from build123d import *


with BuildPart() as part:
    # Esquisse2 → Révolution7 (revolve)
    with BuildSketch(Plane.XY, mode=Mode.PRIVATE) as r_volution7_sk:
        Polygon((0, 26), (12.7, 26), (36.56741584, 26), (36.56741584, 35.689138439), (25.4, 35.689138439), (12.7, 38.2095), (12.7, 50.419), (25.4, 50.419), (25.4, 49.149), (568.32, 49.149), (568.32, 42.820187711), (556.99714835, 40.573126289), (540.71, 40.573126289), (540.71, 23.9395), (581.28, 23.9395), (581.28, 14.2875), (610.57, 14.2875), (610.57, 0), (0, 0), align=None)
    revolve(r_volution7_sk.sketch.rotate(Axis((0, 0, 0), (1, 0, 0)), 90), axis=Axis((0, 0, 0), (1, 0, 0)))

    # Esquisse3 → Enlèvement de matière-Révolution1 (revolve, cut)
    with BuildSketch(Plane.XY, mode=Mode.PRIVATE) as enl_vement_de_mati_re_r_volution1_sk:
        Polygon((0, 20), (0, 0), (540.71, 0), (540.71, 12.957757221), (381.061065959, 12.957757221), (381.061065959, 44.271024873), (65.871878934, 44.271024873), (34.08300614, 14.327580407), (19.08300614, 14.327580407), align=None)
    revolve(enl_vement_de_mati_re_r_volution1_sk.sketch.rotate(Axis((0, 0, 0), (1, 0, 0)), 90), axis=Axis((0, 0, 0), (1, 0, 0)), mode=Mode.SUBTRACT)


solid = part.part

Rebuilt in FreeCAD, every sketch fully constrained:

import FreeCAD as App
import Part
import Sketcher
Q = App.Units.Quantity

doc = App.newDocument("Part")
body = doc.addObject("PartDesign::Body", "Body")

# Sketch on XY plane
sketch1 = body.newObject("Sketcher::SketchObject", "Sketch")
sketch1.AttachmentSupport = (doc.getObject("XY_Plane"), [""])
sketch1.MapMode = "FlatFace"
sketch1.addGeometry(Part.LineSegment(App.Vector(36.567416, 26, 0), App.Vector(0, 26, 0)), False)
sketch1.addGeometry(Part.LineSegment(App.Vector(0, 26, 0), App.Vector(0, 0, 0)), False)
sketch1.addGeometry(Part.LineSegment(App.Vector(0, 0, 0), App.Vector(610.57, 0, 0)), False)
sketch1.addGeometry(Part.LineSegment(App.Vector(610.57, 0, 0), App.Vector(610.57, 14.2875, 0)), False)
sketch1.addGeometry(Part.LineSegment(App.Vector(610.57, 14.2875, 0), App.Vector(581.28, 14.2875, 0)), False)
sketch1.addGeometry(Part.LineSegment(App.Vector(581.28, 14.2875, 0), App.Vector(581.28, 23.9395, 0)), False)
sketch1.addGeometry(Part.LineSegment(App.Vector(581.28, 23.9395, 0), App.Vector(540.71, 23.9395, 0)), False)
sketch1.addGeometry(Part.LineSegment(App.Vector(540.71, 23.9395, 0), App.Vector(540.71, 40.573126, 0)), False)
sketch1.addGeometry(Part.LineSegment(App.Vector(540.71, 40.573126, 0), App.Vector(556.997148, 40.573126, 0)), False)
sketch1.addGeometry(Part.LineSegment(App.Vector(556.997148, 40.573126, 0), App.Vector(568.32, 42.820188, 0)), False)
sketch1.addGeometry(Part.LineSegment(App.Vector(568.32, 42.820188, 0), App.Vector(568.32, 49.149, 0)), False)
sketch1.addGeometry(Part.LineSegment(App.Vector(568.32, 49.149, 0), App.Vector(25.4, 49.149, 0)), False)
sketch1.addGeometry(Part.LineSegment(App.Vector(25.4, 49.149, 0), App.Vector(25.4, 50.419, 0)), False)
sketch1.addGeometry(Part.LineSegment(App.Vector(25.4, 50.419, 0), App.Vector(12.7, 50.419, 0)), False)
sketch1.addGeometry(Part.LineSegment(App.Vector(12.7, 50.419, 0), App.Vector(12.7, 38.2095, 0)), False)
sketch1.addGeometry(Part.LineSegment(App.Vector(12.7, 38.2095, 0), App.Vector(25.4, 35.689138, 0)), False)
sketch1.addGeometry(Part.LineSegment(App.Vector(25.4, 35.689138, 0), App.Vector(36.567416, 35.689138, 0)), False)
sketch1.addGeometry(Part.LineSegment(App.Vector(36.567416, 35.689138, 0), App.Vector(36.567416, 26, 0)), False)
sketch1.addConstraint(Sketcher.Constraint("Coincident", 0, 2, 1, 1))
sketch1.addConstraint(Sketcher.Constraint("Coincident", 1, 2, 2, 1))
sketch1.addConstraint(Sketcher.Constraint("Coincident", 2, 2, 3, 1))
sketch1.addConstraint(Sketcher.Constraint("Coincident", 3, 2, 4, 1))
sketch1.addConstraint(Sketcher.Constraint("Coincident", 4, 2, 5, 1))
sketch1.addConstraint(Sketcher.Constraint("Coincident", 5, 2, 6, 1))
sketch1.addConstraint(Sketcher.Constraint("Coincident", 6, 2, 7, 1))
sketch1.addConstraint(Sketcher.Constraint("Coincident", 7, 2, 8, 1))
sketch1.addConstraint(Sketcher.Constraint("Coincident", 8, 2, 9, 1))
sketch1.addConstraint(Sketcher.Constraint("Coincident", 9, 2, 10, 1))
sketch1.addConstraint(Sketcher.Constraint("Coincident", 10, 2, 11, 1))
sketch1.addConstraint(Sketcher.Constraint("Coincident", 11, 2, 12, 1))
sketch1.addConstraint(Sketcher.Constraint("Coincident", 12, 2, 13, 1))
sketch1.addConstraint(Sketcher.Constraint("Coincident", 13, 2, 14, 1))
sketch1.addConstraint(Sketcher.Constraint("Coincident", 14, 2, 15, 1))
sketch1.addConstraint(Sketcher.Constraint("Coincident", 15, 2, 16, 1))
sketch1.addConstraint(Sketcher.Constraint("Coincident", 16, 2, 17, 1))
sketch1.addConstraint(Sketcher.Constraint("Coincident", 17, 2, 0, 1))
sketch1.addConstraint(Sketcher.Constraint("Horizontal", 0))
sketch1.addConstraint(Sketcher.Constraint("Vertical", 1))
sketch1.addConstraint(Sketcher.Constraint("Horizontal", 2))
sketch1.addConstraint(Sketcher.Constraint("Vertical", 3))
sketch1.addConstraint(Sketcher.Constraint("Horizontal", 4))
sketch1.addConstraint(Sketcher.Constraint("Vertical", 5))
sketch1.addConstraint(Sketcher.Constraint("Horizontal", 6))
sketch1.addConstraint(Sketcher.Constraint("Vertical", 7))
sketch1.addConstraint(Sketcher.Constraint("Horizontal", 8))
sketch1.addConstraint(Sketcher.Constraint("Vertical", 10))
sketch1.addConstraint(Sketcher.Constraint("Horizontal", 11))
sketch1.addConstraint(Sketcher.Constraint("Vertical", 12))
sketch1.addConstraint(Sketcher.Constraint("Horizontal", 13))
sketch1.addConstraint(Sketcher.Constraint("Vertical", 14))
sketch1.addConstraint(Sketcher.Constraint("Horizontal", 16))
sketch1.addConstraint(Sketcher.Constraint("Vertical", 17))
sketch1.addConstraint(Sketcher.Constraint("Coincident", 1, 2, -1, 1))
sketch1.addConstraint(Sketcher.Constraint("Vertical", 12, 2, 15, 2))
sketch1.addConstraint(Sketcher.Constraint("DistanceX", 13, 2, 13, 1, Q("0.5 in")))
sketch1.addConstraint(Sketcher.Constraint("DistanceX", -1, 1, 11, 2, Q("1 in")))
sketch1.addConstraint(Sketcher.Constraint("DistanceY", 5, 1, 5, 2, Q("0.38 in")))
sketch1.addConstraint(Sketcher.Constraint("DistanceY", 12, 1, 12, 2, Q("0.05 in")))
sketch1.addConstraint(Sketcher.Constraint("DistanceY", 3, 1, 3, 2, Q("0.5625 in")))
sketch1.addConstraint(Sketcher.Constraint("DistanceY", -1, 1, 10, 2, Q("1.935 in")))
sketch1.addConstraint(Sketcher.Constraint("DistanceX", 2, 1, 2, 2, 610.57))
sketch1.addConstraint(Sketcher.Constraint("DistanceX", 4, 2, 4, 1, 29.29))
sketch1.addConstraint(Sketcher.Constraint("DistanceX", 6, 2, 6, 1, 40.57))
sketch1.addConstraint(Sketcher.Constraint("DistanceX", 11, 2, 11, 1, 542.92))
sketch1.addConstraint(Sketcher.Constraint("DistanceY", 1, 2, 1, 1, 26.0))
sketch1.addConstraint(Sketcher.Constraint("DistanceY", 14, 2, 14, 1, 12.2095))
sketch1.addConstraint(Sketcher.Constraint("DistanceX", 8, 1, 8, 2, 16.287148))
sketch1.addConstraint(Sketcher.Constraint("DistanceY", 17, 2, 17, 1, 9.689138))
sketch1.addConstraint(Sketcher.Constraint("DistanceX", 0, 2, 0, 1, 36.567416))
sketch1.addConstraint(Sketcher.Constraint("DistanceY", 7, 1, 7, 2, 16.633626))
sketch1.addConstraint(Sketcher.Constraint("DistanceY", 10, 1, 10, 2, 6.328812))
revolution = body.newObject("PartDesign::Revolution", "Revolution")
revolution.Profile = sketch1
revolution.ReferenceAxis = (sketch1, ["H_Axis"])
revolution.Angle = 360

# Sketch on XY plane
sketch2 = body.newObject("Sketcher::SketchObject", "Sketch001")
sketch2.AttachmentSupport = (doc.getObject("XY_Plane"), [""])
sketch2.MapMode = "FlatFace"
sketch2.addGeometry(Part.LineSegment(App.Vector(0, 20, 0), App.Vector(0, 0, 0)), False)
sketch2.addGeometry(Part.LineSegment(App.Vector(0, 0, 0), App.Vector(540.71, 0, 0)), False)
sketch2.addGeometry(Part.LineSegment(App.Vector(540.71, 0, 0), App.Vector(540.71, 12.957757, 0)), False)
sketch2.addGeometry(Part.LineSegment(App.Vector(540.71, 12.957757, 0), App.Vector(381.061066, 12.957757, 0)), False)
sketch2.addGeometry(Part.LineSegment(App.Vector(381.061066, 12.957757, 0), App.Vector(381.061066, 44.271025, 0)), False)
sketch2.addGeometry(Part.LineSegment(App.Vector(381.061066, 44.271025, 0), App.Vector(65.871879, 44.271025, 0)), False)
sketch2.addGeometry(Part.LineSegment(App.Vector(65.871879, 44.271025, 0), App.Vector(34.083006, 14.32758, 0)), False)
sketch2.addGeometry(Part.LineSegment(App.Vector(34.083006, 14.32758, 0), App.Vector(19.083006, 14.32758, 0)), False)
sketch2.addGeometry(Part.LineSegment(App.Vector(19.083006, 14.32758, 0), App.Vector(0, 20, 0)), False)
sketch2.addConstraint(Sketcher.Constraint("Coincident", 0, 2, 1, 1))
sketch2.addConstraint(Sketcher.Constraint("Coincident", 1, 2, 2, 1))
sketch2.addConstraint(Sketcher.Constraint("Coincident", 2, 2, 3, 1))
sketch2.addConstraint(Sketcher.Constraint("Coincident", 3, 2, 4, 1))
sketch2.addConstraint(Sketcher.Constraint("Coincident", 4, 2, 5, 1))
sketch2.addConstraint(Sketcher.Constraint("Coincident", 5, 2, 6, 1))
sketch2.addConstraint(Sketcher.Constraint("Coincident", 6, 2, 7, 1))
sketch2.addConstraint(Sketcher.Constraint("Coincident", 7, 2, 8, 1))
sketch2.addConstraint(Sketcher.Constraint("Coincident", 8, 2, 0, 1))
sketch2.addConstraint(Sketcher.Constraint("Vertical", 0))
sketch2.addConstraint(Sketcher.Constraint("Horizontal", 1))
sketch2.addConstraint(Sketcher.Constraint("Vertical", 2))
sketch2.addConstraint(Sketcher.Constraint("Horizontal", 3))
sketch2.addConstraint(Sketcher.Constraint("Vertical", 4))
sketch2.addConstraint(Sketcher.Constraint("Horizontal", 5))
sketch2.addConstraint(Sketcher.Constraint("Horizontal", 7))
sketch2.addConstraint(Sketcher.Constraint("Coincident", 0, 2, -1, 1))
sketch2.addConstraint(Sketcher.Constraint("DistanceX", 1, 1, 1, 2, 540.71))
sketch2.addConstraint(Sketcher.Constraint("DistanceX", 7, 2, 7, 1, 15.0))
sketch2.addConstraint(Sketcher.Constraint("DistanceY", 0, 2, 0, 1, 20.0))
sketch2.addConstraint(Sketcher.Constraint("Distance", 6, 43.67084))
sketch2.addConstraint(Sketcher.Constraint("DistanceX", 3, 2, 3, 1, 159.648934))
sketch2.addConstraint(Sketcher.Constraint("DistanceX", 5, 2, 5, 1, 315.189187))
sketch2.addConstraint(Sketcher.Constraint("DistanceY", 2, 1, 2, 2, 12.957757))
sketch2.addConstraint(Sketcher.Constraint("DistanceY", 4, 1, 4, 2, 31.313268))
sketch2.addConstraint(Sketcher.Constraint("DistanceY", -1, 1, 6, 2, 14.32758))
groove = body.newObject("PartDesign::Groove", "Groove")
groove.Profile = sketch2
groove.ReferenceAxis = (sketch2, ["H_Axis"])
groove.Angle = 360

doc.recompute()
